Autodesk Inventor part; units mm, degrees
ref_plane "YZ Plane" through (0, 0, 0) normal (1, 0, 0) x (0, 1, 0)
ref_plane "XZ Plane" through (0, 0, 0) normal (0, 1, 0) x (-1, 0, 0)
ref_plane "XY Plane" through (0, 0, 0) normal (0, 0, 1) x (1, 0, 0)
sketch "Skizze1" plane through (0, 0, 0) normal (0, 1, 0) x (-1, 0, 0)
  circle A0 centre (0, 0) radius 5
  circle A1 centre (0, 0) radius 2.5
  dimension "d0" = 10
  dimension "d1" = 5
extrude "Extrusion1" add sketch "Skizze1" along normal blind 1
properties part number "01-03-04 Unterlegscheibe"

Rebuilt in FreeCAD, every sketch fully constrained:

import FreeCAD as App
import Part
import Sketcher
Q = App.Units.Quantity

doc = App.newDocument("Part")
body = doc.addObject("PartDesign::Body", "Body")

# Sketch on XZ plane
sketch1 = body.newObject("Sketcher::SketchObject", "Sketch")
sketch1.AttachmentSupport = (doc.getObject("XZ_Plane"), [""])
sketch1.MapMode = "FlatFace"
sketch1.addGeometry([
    Part.Circle(App.Vector(0, 0, 0), App.Vector(0, 0, 1), 5),
    Part.Circle(App.Vector(0, 0, 0), App.Vector(0, 0, 1), 2.5),
], False)
sketch1.addConstraint([
    Sketcher.Constraint("Coincident", 0, 3, -1, 1),
    Sketcher.Constraint("Coincident", 1, 3, -1, 1),
    Sketcher.Constraint("Diameter", 0, Q("10 mm")),
    Sketcher.Constraint("Diameter", 1, Q("5 mm")),
])
pad1 = body.newObject("PartDesign::Pad", "Pad")
pad1.Profile = sketch1
pad1.Length = 1
pad1.Reversed = True

doc.recompute()
